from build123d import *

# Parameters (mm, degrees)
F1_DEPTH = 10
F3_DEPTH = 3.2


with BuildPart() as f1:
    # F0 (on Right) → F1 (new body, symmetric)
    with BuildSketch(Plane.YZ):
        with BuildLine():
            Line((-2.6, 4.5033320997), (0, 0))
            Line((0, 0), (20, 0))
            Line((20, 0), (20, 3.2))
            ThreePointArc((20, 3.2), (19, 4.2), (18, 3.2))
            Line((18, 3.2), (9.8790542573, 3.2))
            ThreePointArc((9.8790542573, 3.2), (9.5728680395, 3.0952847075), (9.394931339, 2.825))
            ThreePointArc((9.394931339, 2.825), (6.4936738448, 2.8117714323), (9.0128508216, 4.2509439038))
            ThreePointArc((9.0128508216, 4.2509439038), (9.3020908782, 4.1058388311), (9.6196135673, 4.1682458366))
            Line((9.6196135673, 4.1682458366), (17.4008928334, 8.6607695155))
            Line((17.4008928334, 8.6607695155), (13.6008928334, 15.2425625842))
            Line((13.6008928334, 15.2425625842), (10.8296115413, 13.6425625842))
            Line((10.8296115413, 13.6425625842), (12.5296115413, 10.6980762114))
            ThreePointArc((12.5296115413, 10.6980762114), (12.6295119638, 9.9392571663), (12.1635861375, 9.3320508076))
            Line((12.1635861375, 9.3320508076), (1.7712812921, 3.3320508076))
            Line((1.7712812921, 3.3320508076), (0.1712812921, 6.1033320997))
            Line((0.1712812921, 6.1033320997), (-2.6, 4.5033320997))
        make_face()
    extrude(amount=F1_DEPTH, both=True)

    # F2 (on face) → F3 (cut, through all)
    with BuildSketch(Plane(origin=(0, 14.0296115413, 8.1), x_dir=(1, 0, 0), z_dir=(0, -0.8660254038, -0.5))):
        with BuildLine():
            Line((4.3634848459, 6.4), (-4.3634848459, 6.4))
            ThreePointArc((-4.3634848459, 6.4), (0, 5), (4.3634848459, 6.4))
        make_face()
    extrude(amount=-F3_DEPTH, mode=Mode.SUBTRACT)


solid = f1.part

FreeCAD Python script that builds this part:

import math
import FreeCAD as App
import Part
import Sketcher

V = App.Vector
Q = App.Units.Quantity

doc = App.newDocument("Part")
body = doc.addObject("PartDesign::Body", "Body")

# Sketch on YZ plane
sketch1 = body.newObject("Sketcher::SketchObject", "Sketch")
sketch1.AttachmentSupport = (doc.getObject("YZ_Plane"), [""])
sketch1.MapMode = "FlatFace"
sketch1.addGeometry(Part.LineSegment(V(-2.6, 4.5, 0), V(0, 0, 0)), False)
sketch1.addGeometry(Part.LineSegment(V(0, 0, 0), V(20, 0, 0)), False)
sketch1.addGeometry(Part.LineSegment(V(20, 0, 0), V(20, 3.2, 0)), False)
sketch1.addGeometry(Part.ArcOfCircle(Part.Circle(V(19, 3.2, 0), V(0, 0, 1), 1), math.radians(0), math.radians(180)), False)
sketch1.addGeometry(Part.LineSegment(V(18, 3.2, 0), V(9.9, 3.2, 0)), False)
sketch1.addGeometry(Part.ArcOfCircle(Part.Circle(V(9.9, 2.7, 0), V(0, 0, 1), 0.5), math.radians(90), math.radians(166)), False)
sketch1.addGeometry(Part.ArcOfCircle(Part.Circle(V(7.9, 3.2, 0), V(0, 0, 1), 1.5), math.radians(44), math.radians(346)), False)
sketch1.addGeometry(Part.ArcOfCircle(Part.Circle(V(9.4, 4.6, 0), V(0, 0, 1), 0.5), math.radians(-136), math.radians(-60)), False)
sketch1.addGeometry(Part.LineSegment(V(9.6, 4.2, 0), V(17.4, 8.7, 0)), False)
sketch1.addGeometry(Part.LineSegment(V(17.4, 8.7, 0), V(13.6, 15.2, 0)), False)
sketch1.addGeometry(Part.LineSegment(V(13.6, 15.2, 0), V(10.8, 13.6, 0)), False)
sketch1.addGeometry(Part.LineSegment(V(10.8, 13.6, 0), V(12.5, 10.7, 0)), False)
sketch1.addGeometry(Part.ArcOfCircle(Part.Circle(V(11.7, 10.2, 0), V(0, 0, 1), 1), math.radians(-60), math.radians(30)), False)
sketch1.addGeometry(Part.LineSegment(V(12.2, 9.3, 0), V(1.8, 3.3, 0)), False)
sketch1.addGeometry(Part.LineSegment(V(1.8, 3.3, 0), V(0.2, 6.1, 0)), False)
sketch1.addGeometry(Part.LineSegment(V(0.2, 6.1, 0), V(-2.6, 4.5, 0)), False)
sketch1.addConstraint(Sketcher.Constraint("Coincident", 0, 2, 1, 1))
sketch1.addConstraint(Sketcher.Constraint("Coincident", 1, 2, 2, 1))
sketch1.addConstraint(Sketcher.Constraint("Tangent", 2, 2, 3, 1))
sketch1.addConstraint(Sketcher.Constraint("Coincident", 3, 2, 4, 1))
sketch1.addConstraint(Sketcher.Constraint("Tangent", 4, 2, 5, 1))
sketch1.addConstraint(Sketcher.Constraint("Tangent", 5, 2, 6, 2))
sketch1.addConstraint(Sketcher.Constraint("Tangent", 6, 1, 7, 1))
sketch1.addConstraint(Sketcher.Constraint("Tangent", 7, 2, 8, 1))
sketch1.addConstraint(Sketcher.Constraint("Coincident", 8, 2, 9, 1))
sketch1.addConstraint(Sketcher.Constraint("Coincident", 9, 2, 10, 1))
sketch1.addConstraint(Sketcher.Constraint("Coincident", 10, 2, 11, 1))
sketch1.addConstraint(Sketcher.Constraint("Tangent", 11, 2, 12, 2))
sketch1.addConstraint(Sketcher.Constraint("Tangent", 12, 1, 13, 1))
sketch1.addConstraint(Sketcher.Constraint("Coincident", 13, 2, 14, 1))
sketch1.addConstraint(Sketcher.Constraint("Coincident", 14, 2, 15, 1))
sketch1.addConstraint(Sketcher.Constraint("Coincident", 15, 2, 0, 1))
sketch1.addConstraint(Sketcher.Constraint("Horizontal", 1))
sketch1.addConstraint(Sketcher.Constraint("Vertical", 2))
sketch1.addConstraint(Sketcher.Constraint("Horizontal", 4))
sketch1.addConstraint(Sketcher.Constraint("Coincident", 0, 2, -1, 1))
sketch1.addConstraint(Sketcher.Constraint("Equal", 5, 7))
sketch1.addConstraint(Sketcher.Constraint("Equal", 3, 12))
sketch1.addConstraint(Sketcher.Constraint("Perpendicular", 0, 8))
sketch1.addConstraint(Sketcher.Constraint("Perpendicular", 8, 9))
sketch1.addConstraint(Sketcher.Constraint("Perpendicular", 9, 10))
sketch1.addConstraint(Sketcher.Constraint("Perpendicular", 10, 11))
sketch1.addConstraint(Sketcher.Constraint("Perpendicular", 11, 13))
sketch1.addConstraint(Sketcher.Constraint("Perpendicular", 13, 14))
sketch1.addConstraint(Sketcher.Constraint("Perpendicular", 14, 15))
sketch1.addConstraint(Sketcher.Constraint("Horizontal", 3, 3, 6, 3))
sketch1.addConstraint(Sketcher.Constraint("Horizontal", 2, 2, 3, 2))
sketch1.addConstraint(Sketcher.Constraint("Equal", 10, 14))
sketch1.addConstraint(Sketcher.Constraint("Equal", 14, 15))
sketch1.addConstraint(Sketcher.Constraint("Radius", 3, Q("1 mm")))
sketch1.addConstraint(Sketcher.Constraint("Radius", 5, Q("0.5 mm")))
sketch1.addConstraint(Sketcher.Constraint("Radius", 6, Q("1.5 mm")))
sketch1.addConstraint(Sketcher.Constraint("DistanceX", 1, 1, 1, 2, Q("20 mm")))
sketch1.addConstraint(Sketcher.Constraint("Angle", 0, Q("-60 deg")))
sketch1.addConstraint(Sketcher.Constraint("Distance", 13, Q("12 mm")))
sketch1.addConstraint(Sketcher.Constraint("DistanceY", 2, 1, 2, 2, Q("3.2 mm")))
sketch1.addConstraint(Sketcher.Constraint("Distance", 0, Q("5.2 mm")))
sketch1.addConstraint(Sketcher.Constraint("Distance", 9, Q("7.6 mm")))
sketch1.addConstraint(Sketcher.Constraint("Distance", 10, Q("3.2 mm")))
sketch1.addConstraint(Sketcher.Constraint("Distance", 11, Q("3.4 mm")))
sketch1.addConstraint(Sketcher.Constraint("DistanceY", 7, 2, 6, 1, Q("0.082698 mm")))
pad1 = body.newObject("PartDesign::Pad", "Pad")
pad1.Profile = sketch1
pad1.Length = 20
pad1.Midplane = True

# Sketch on an angled plane
sketch2 = body.newObject("Sketcher::SketchObject", "Sketch001")
sketch2.Placement = App.Placement(V(0, 14.029612, 8.1), App.Rotation(V(1, 0, 0), V(0, -0.5, 0.866025404), V(0, -0.866025404, -0.5), "ZXY"))
sketch2.addGeometry(Part.LineSegment(V(4, 6, 0), V(-4, 6, 0)), False)
sketch2.addGeometry(Part.ArcOfCircle(Part.Circle(V(0, 13, 0), V(0, 0, 1), 8), math.radians(-126), math.radians(-54)), False)
sketch2.addConstraint(Sketcher.Constraint("Coincident", 0, 1, 1, 2))
sketch2.addConstraint(Sketcher.Constraint("Coincident", 1, 1, 0, 2))
sketch2.addConstraint(Sketcher.Constraint("Horizontal", 0))
sketch2.addConstraint(Sketcher.Constraint("PointOnObject", 1, 3, -2))
sketch2.addConstraint(Sketcher.Constraint("Radius", 1, Q("7.5 mm")))
sketch2.addConstraint(Sketcher.Constraint("DistanceY", -1, 1, 1, 3, Q("12.5 mm")))
sketch2.addConstraint(Sketcher.Constraint("DistanceY", -1, 1, 0, 1, Q("6.4 mm")))
pocket1 = body.newObject("PartDesign::Pocket", "Pocket")
pocket1.Profile = sketch2
pocket1.Type = "ThroughAll"

doc.recompute()
